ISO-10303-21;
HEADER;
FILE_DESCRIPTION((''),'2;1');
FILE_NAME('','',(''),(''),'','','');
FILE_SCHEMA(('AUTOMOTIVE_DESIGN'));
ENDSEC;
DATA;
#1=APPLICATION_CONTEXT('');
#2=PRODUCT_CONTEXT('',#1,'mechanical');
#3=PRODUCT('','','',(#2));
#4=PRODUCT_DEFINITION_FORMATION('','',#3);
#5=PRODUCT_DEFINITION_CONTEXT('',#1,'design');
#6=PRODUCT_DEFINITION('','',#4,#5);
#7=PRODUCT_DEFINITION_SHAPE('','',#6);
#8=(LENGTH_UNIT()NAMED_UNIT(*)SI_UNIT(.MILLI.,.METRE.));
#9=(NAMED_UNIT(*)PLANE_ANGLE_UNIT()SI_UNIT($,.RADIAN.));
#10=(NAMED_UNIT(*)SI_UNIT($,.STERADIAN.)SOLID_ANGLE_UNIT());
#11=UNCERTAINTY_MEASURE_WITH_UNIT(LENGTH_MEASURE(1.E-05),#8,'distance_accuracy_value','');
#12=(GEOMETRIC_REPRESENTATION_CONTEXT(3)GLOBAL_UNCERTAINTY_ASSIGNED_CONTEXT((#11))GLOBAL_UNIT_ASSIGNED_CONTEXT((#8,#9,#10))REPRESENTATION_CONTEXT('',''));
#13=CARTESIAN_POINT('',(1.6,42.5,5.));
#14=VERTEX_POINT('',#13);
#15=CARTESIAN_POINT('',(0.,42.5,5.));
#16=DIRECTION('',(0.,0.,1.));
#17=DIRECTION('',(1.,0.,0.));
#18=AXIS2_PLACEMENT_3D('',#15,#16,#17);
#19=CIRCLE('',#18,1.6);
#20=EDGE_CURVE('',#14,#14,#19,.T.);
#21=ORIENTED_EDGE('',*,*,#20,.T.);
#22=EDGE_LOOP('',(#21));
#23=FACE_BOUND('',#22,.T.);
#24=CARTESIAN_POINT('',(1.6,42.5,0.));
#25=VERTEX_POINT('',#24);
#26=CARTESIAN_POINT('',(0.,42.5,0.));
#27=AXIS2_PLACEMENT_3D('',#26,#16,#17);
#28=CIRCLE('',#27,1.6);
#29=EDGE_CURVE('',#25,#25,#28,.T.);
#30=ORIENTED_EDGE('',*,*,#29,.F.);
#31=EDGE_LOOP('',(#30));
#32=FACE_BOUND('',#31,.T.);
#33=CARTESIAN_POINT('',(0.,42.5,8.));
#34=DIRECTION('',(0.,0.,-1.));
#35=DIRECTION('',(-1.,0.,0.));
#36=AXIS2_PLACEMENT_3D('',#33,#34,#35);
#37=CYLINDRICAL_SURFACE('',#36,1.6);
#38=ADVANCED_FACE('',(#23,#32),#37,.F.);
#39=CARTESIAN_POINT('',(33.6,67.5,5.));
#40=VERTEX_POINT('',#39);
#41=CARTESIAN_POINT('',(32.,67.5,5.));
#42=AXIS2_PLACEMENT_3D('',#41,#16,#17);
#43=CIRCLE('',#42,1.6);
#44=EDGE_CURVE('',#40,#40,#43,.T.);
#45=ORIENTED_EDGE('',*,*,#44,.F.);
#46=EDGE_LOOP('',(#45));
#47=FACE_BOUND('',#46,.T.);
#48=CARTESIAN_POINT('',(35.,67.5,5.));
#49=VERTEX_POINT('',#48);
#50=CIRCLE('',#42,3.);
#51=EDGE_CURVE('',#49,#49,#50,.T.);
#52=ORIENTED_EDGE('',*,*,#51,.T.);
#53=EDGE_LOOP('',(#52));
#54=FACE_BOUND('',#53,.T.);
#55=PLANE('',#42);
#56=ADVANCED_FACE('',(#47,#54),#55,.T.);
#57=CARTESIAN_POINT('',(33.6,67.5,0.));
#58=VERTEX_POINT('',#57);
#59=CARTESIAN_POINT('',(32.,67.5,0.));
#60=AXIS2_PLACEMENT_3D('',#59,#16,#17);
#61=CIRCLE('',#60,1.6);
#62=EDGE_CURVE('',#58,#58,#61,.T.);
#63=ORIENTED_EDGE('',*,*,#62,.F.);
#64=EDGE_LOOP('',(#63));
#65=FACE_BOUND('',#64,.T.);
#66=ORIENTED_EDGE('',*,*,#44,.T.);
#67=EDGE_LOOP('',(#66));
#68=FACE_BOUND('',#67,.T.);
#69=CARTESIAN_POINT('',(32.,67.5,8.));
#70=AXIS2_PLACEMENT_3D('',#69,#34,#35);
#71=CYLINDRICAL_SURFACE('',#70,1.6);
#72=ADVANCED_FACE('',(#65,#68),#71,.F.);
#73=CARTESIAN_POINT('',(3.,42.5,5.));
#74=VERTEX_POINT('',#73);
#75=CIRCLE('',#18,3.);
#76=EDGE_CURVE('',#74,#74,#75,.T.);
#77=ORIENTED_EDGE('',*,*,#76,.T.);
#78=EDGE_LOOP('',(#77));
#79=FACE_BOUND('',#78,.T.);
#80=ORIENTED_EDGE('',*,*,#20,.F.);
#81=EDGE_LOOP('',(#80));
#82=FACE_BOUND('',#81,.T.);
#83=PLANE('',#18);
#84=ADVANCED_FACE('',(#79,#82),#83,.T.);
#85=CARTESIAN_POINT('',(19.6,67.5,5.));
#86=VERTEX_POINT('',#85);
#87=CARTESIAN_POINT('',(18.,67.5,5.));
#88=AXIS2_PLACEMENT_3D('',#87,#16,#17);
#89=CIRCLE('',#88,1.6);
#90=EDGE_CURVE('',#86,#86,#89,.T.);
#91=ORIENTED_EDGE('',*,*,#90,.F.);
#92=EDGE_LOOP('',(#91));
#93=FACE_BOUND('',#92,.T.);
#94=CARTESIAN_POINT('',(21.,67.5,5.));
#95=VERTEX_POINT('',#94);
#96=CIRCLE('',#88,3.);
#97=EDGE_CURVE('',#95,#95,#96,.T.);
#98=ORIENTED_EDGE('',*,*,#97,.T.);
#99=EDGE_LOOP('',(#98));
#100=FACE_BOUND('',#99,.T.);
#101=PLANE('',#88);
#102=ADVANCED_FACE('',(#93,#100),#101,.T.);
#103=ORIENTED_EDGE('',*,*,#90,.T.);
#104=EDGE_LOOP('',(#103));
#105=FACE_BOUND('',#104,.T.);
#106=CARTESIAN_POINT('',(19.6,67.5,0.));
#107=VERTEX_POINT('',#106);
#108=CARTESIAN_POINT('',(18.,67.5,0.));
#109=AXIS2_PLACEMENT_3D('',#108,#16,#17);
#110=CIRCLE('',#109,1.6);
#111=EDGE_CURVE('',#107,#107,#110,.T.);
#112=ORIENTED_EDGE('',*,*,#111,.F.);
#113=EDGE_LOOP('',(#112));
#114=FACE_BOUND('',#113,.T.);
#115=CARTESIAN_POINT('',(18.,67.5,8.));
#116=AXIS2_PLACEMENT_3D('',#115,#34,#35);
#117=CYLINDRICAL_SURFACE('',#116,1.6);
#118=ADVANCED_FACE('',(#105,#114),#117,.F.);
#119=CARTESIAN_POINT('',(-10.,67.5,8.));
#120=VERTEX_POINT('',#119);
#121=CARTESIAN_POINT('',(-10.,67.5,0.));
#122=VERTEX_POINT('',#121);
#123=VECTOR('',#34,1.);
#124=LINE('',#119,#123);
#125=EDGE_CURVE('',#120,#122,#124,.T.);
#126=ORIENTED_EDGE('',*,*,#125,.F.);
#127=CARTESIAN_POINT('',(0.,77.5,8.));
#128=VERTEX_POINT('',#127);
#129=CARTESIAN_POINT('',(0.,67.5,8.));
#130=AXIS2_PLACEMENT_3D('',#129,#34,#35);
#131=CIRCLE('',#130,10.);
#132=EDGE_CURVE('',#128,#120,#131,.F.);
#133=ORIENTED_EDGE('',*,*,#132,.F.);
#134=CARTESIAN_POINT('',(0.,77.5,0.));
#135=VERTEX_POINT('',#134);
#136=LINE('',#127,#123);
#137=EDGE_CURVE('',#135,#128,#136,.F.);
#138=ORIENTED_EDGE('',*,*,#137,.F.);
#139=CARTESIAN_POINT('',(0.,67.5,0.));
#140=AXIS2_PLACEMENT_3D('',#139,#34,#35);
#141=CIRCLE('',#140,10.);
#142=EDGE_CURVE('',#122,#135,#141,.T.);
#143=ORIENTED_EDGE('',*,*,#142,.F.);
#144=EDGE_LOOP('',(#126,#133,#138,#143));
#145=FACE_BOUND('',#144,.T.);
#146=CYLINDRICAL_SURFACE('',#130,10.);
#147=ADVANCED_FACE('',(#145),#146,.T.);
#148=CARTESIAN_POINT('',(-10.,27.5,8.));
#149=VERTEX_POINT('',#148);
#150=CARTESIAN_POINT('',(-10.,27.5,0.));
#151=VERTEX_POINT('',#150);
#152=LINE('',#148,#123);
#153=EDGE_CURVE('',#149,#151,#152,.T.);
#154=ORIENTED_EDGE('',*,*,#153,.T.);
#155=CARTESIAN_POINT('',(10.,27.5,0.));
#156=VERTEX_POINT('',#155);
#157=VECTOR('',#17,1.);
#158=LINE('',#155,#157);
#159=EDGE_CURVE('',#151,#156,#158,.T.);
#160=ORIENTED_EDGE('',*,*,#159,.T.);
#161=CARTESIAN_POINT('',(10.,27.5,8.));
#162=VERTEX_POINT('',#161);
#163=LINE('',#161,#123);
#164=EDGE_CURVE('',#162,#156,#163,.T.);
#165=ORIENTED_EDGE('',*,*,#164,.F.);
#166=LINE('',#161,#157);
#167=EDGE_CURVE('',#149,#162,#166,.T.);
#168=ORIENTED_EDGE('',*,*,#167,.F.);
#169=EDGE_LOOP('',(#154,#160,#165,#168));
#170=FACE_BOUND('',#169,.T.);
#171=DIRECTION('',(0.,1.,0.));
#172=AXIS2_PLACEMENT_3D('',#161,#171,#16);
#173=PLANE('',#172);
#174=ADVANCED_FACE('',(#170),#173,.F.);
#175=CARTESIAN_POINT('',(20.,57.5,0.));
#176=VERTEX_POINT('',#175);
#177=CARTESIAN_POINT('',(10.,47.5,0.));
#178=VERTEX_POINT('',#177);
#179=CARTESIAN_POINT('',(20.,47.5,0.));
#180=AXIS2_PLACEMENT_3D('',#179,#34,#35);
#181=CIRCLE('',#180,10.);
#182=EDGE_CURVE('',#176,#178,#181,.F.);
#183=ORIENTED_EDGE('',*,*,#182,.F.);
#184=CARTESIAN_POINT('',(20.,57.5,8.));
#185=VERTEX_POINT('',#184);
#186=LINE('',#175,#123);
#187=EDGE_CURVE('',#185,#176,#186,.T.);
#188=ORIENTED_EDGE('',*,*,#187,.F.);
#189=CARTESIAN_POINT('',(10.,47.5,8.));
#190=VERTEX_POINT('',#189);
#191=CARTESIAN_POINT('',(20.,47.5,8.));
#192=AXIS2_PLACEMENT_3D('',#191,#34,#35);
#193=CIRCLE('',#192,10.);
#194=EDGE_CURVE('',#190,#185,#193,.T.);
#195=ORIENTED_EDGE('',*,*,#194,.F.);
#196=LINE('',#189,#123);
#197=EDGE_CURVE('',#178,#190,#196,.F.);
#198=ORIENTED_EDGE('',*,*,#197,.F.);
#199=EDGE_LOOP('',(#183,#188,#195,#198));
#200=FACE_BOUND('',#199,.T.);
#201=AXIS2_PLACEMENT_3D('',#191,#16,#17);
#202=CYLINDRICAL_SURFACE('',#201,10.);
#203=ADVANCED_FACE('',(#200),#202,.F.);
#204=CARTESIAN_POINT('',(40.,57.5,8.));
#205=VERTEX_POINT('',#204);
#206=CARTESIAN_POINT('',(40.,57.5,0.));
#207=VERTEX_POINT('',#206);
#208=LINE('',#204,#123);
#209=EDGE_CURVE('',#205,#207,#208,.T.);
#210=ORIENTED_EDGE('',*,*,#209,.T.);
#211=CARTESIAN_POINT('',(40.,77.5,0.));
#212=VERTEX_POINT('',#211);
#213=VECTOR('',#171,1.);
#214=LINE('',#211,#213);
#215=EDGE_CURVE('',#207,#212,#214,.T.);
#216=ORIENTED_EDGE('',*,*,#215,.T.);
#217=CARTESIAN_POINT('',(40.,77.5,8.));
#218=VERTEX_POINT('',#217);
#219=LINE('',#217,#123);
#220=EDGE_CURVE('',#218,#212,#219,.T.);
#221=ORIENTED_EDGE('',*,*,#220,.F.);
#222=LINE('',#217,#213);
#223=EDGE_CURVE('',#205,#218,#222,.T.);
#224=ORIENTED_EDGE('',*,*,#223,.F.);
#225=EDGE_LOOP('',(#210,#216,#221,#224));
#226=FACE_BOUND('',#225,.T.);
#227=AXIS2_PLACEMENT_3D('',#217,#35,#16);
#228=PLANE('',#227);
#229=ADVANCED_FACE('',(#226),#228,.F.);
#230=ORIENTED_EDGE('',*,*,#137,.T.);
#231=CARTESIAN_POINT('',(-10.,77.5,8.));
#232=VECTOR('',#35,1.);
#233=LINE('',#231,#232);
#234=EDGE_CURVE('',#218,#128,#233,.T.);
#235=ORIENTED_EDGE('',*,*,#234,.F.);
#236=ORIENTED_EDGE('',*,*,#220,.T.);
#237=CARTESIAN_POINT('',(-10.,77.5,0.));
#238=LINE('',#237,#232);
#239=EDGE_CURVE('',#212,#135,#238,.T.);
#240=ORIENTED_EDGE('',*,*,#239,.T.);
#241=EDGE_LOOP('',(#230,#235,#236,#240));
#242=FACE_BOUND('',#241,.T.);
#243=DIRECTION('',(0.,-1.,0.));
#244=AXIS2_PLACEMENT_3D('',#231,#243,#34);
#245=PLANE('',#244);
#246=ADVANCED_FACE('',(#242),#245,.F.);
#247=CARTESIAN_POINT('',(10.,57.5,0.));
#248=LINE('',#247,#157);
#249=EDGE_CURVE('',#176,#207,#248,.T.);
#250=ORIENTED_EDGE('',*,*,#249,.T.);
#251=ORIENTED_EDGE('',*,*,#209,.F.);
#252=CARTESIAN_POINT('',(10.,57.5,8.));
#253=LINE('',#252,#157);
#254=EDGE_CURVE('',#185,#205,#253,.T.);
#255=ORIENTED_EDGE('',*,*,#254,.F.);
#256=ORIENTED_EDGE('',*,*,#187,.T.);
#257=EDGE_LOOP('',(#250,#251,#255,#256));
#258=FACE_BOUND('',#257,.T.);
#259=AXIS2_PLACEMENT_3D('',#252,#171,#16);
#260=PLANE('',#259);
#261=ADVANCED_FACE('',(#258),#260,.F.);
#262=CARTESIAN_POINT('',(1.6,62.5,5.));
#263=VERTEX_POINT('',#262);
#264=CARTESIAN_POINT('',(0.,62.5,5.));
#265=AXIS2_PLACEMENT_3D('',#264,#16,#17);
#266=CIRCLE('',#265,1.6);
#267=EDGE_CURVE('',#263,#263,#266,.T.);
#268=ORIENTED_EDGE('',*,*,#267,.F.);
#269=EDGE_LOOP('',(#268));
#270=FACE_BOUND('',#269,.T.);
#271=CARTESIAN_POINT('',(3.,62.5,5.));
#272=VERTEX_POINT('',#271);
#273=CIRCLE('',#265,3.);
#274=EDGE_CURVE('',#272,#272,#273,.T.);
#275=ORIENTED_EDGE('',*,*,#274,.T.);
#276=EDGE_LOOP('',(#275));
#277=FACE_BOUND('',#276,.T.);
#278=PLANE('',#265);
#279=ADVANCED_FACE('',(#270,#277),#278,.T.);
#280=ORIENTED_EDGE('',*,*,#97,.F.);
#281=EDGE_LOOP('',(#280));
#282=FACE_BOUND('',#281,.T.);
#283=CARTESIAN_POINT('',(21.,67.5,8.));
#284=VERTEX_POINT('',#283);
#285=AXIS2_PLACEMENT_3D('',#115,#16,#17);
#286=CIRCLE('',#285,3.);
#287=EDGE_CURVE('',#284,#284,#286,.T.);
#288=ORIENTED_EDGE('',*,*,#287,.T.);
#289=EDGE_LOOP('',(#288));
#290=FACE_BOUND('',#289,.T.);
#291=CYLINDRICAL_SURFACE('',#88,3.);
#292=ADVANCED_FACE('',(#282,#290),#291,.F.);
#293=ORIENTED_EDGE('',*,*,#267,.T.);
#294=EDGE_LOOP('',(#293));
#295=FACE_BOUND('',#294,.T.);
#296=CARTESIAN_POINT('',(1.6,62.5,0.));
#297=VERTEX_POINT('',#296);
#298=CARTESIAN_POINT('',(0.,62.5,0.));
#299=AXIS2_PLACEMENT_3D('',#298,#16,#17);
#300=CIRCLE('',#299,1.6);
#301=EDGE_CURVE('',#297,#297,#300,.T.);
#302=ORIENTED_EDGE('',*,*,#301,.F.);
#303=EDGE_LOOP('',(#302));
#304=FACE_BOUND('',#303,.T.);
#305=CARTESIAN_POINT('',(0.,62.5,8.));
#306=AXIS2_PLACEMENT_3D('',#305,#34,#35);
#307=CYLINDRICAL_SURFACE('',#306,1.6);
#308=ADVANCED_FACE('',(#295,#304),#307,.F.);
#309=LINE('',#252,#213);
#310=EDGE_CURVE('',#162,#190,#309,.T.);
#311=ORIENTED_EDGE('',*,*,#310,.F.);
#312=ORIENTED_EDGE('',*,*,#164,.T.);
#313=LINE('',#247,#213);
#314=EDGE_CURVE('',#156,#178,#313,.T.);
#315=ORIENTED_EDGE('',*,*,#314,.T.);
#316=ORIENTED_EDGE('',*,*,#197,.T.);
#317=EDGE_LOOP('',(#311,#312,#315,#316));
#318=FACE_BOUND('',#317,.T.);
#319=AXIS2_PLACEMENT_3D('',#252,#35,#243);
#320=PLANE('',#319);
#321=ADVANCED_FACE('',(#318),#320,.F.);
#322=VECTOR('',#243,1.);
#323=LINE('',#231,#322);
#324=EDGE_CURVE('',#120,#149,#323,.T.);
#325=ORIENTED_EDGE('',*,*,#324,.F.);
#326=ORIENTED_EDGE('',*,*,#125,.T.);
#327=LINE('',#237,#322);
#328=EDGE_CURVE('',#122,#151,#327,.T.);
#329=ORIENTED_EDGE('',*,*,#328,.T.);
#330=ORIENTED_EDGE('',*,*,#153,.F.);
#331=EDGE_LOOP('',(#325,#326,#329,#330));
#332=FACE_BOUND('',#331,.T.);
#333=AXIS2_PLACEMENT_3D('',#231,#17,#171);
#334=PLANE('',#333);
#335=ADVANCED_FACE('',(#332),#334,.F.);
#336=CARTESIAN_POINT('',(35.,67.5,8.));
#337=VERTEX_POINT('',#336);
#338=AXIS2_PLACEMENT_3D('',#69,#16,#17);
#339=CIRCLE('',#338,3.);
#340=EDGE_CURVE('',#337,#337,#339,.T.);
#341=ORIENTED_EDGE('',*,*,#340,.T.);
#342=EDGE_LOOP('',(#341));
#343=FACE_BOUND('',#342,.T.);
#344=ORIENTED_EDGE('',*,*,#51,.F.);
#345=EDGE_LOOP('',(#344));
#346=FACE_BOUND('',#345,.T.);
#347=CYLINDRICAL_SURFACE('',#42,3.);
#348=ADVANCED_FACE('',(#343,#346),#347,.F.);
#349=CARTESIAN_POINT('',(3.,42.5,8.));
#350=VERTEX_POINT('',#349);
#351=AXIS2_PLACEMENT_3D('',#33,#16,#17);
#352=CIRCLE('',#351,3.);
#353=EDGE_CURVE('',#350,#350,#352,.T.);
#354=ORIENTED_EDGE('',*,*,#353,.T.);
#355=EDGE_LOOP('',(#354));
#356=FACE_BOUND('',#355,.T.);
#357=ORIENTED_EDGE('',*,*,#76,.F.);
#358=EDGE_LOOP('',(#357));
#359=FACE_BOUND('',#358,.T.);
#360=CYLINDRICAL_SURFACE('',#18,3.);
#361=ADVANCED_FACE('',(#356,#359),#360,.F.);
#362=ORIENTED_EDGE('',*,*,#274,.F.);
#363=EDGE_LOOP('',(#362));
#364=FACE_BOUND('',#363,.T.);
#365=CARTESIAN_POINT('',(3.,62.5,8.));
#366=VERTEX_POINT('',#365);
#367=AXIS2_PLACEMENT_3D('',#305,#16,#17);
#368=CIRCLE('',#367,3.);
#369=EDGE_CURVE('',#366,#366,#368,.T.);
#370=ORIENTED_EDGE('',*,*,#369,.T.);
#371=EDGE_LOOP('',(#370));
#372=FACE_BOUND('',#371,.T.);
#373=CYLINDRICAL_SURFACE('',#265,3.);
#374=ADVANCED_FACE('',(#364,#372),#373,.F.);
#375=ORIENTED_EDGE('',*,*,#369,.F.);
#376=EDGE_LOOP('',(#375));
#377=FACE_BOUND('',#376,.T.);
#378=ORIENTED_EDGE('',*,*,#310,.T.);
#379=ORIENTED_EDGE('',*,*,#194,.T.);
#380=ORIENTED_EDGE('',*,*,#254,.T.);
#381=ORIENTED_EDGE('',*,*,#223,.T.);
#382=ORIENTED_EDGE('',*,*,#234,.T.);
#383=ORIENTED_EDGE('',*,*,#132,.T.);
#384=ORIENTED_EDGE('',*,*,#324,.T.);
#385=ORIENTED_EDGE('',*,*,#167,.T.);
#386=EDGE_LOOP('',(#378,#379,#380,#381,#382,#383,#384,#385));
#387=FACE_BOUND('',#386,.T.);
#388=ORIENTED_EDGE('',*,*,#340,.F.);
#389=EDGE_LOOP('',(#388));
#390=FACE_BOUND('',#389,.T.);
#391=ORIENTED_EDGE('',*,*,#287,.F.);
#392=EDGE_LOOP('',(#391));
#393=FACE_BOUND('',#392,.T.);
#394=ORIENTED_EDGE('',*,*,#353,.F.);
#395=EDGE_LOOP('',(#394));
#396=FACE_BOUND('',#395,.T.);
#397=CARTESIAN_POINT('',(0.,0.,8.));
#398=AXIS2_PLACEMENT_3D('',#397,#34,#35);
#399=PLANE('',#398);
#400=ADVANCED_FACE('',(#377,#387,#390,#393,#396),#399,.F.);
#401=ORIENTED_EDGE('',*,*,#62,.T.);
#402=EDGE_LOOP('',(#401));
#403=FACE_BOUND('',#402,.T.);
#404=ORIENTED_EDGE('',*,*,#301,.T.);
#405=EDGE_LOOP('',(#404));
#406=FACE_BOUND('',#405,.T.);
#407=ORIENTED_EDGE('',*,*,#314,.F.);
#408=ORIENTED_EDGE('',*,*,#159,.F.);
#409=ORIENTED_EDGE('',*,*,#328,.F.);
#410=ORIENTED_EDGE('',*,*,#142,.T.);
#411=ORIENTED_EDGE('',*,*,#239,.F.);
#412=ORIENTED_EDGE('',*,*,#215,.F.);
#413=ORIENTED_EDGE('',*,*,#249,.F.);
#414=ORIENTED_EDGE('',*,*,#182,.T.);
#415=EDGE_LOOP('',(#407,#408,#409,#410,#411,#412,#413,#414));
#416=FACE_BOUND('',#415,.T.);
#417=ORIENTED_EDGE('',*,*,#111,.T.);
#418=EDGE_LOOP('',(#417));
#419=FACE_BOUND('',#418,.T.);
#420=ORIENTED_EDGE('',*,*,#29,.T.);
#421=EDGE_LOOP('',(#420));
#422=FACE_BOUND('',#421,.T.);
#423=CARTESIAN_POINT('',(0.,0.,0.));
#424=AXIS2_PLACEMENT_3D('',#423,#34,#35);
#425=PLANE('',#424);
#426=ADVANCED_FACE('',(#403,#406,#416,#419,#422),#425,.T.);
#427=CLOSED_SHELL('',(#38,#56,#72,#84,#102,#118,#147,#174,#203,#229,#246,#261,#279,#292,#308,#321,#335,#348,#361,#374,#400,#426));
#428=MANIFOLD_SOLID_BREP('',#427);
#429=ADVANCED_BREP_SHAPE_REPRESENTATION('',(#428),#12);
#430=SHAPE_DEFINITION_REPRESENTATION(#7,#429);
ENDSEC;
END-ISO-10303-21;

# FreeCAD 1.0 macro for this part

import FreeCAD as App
import Part
import Sketcher
from FreeCAD import Vector


def edges_at(feature, points):
    """Names of the edges that pass closest to the given points."""
    edges = feature.Shape.Edges
    near = lambda p: min(range(len(edges)), key=lambda i: edges[i].distToShape(Part.Vertex(*p))[0])
    return sorted({f"Edge{near(p) + 1}" for p in points})

doc = App.newDocument("Part")
body = doc.addObject("PartDesign::Body", "Body")

sketch1 = body.newObject("Sketcher::SketchObject", "Sketch")
sketch1.AttachmentSupport = (doc.getObject("XY_Plane"), [""])
sketch1.MapMode = "FlatFace"
sketch1.addGeometry(Part.LineSegment(Vector(10, 27.5, 0), Vector(10, 57.5, 0)), False)
sketch1.addGeometry(Part.LineSegment(Vector(10, 57.5, 0), Vector(40, 57.5, 0)), False)
sketch1.addGeometry(Part.LineSegment(Vector(40, 57.5, 0), Vector(40, 77.5, 0)), False)
sketch1.addGeometry(Part.LineSegment(Vector(40, 77.5, 0), Vector(-10, 77.5, 0)), False)
sketch1.addGeometry(Part.LineSegment(Vector(-10, 77.5, 0), Vector(-10, 27.5, 0)), False)
sketch1.addGeometry(Part.LineSegment(Vector(-10, 27.5, 0), Vector(10, 27.5, 0)), False)
sketch1.addGeometry(Part.Circle(Vector(0, 42.5, 0), Vector(0, 0, 1), 1.6), False)
sketch1.addGeometry(Part.Circle(Vector(32, 67.5, 0), Vector(0, 0, 1), 1.6), False)
sketch1.addGeometry(Part.Circle(Vector(18, 67.5, 0), Vector(0, 0, 1), 1.6), False)
sketch1.addGeometry(Part.Circle(Vector(0, 62.5, 0), Vector(0, 0, 1), 1.6), False)
sketch1.addConstraint(Sketcher.Constraint("Coincident", 0, 2, 1, 1))
sketch1.addConstraint(Sketcher.Constraint("Coincident", 1, 2, 2, 1))
sketch1.addConstraint(Sketcher.Constraint("Coincident", 2, 2, 3, 1))
sketch1.addConstraint(Sketcher.Constraint("Coincident", 3, 2, 4, 1))
sketch1.addConstraint(Sketcher.Constraint("Coincident", 4, 2, 5, 1))
sketch1.addConstraint(Sketcher.Constraint("Coincident", 5, 2, 0, 1))
sketch1.addConstraint(Sketcher.Constraint("Vertical", 0))
sketch1.addConstraint(Sketcher.Constraint("Horizontal", 1))
sketch1.addConstraint(Sketcher.Constraint("Vertical", 2))
sketch1.addConstraint(Sketcher.Constraint("Horizontal", 3))
sketch1.addConstraint(Sketcher.Constraint("Vertical", 4))
sketch1.addConstraint(Sketcher.Constraint("Horizontal", 5))
sketch1.addConstraint(Sketcher.Constraint("Equal", 6, 7))
sketch1.addConstraint(Sketcher.Constraint("Equal", 7, 8))
sketch1.addConstraint(Sketcher.Constraint("Equal", 8, 9))
sketch1.addConstraint(Sketcher.Constraint("PointOnObject", 6, 3, -2))
sketch1.addConstraint(Sketcher.Constraint("PointOnObject", 9, 3, -2))
sketch1.addConstraint(Sketcher.Constraint("Horizontal", 7, 3, 8, 3))
sketch1.addConstraint(Sketcher.Constraint("Equal", 1, 0))
sketch1.addConstraint(Sketcher.Constraint("Equal", 5, 2))
sketch1.addConstraint(Sketcher.Constraint("Diameter", 6, 3.2))
sketch1.addConstraint(Sketcher.Constraint("DistanceX", 1, 1, 1, 2, 30.0))
sketch1.addConstraint(Sketcher.Constraint("DistanceX", 3, 2, 3, 1, 50.0))
sketch1.addConstraint(Sketcher.Constraint("DistanceX", -1, 1, 7, 3, 32.0))
sketch1.addConstraint(Sketcher.Constraint("DistanceX", -1, 1, 8, 3, 18.0))
sketch1.addConstraint(Sketcher.Constraint("DistanceX", -1, 1, 0, 2, 10.0))
sketch1.addConstraint(Sketcher.Constraint("DistanceY", 6, 3, 7, 3, 25.0))
sketch1.addConstraint(Sketcher.Constraint("DistanceY", 9, 3, 8, 3, 5.0))
sketch1.addConstraint(Sketcher.Constraint("DistanceY", 0, 2, 9, 3, 5.0))
sketch1.addConstraint(Sketcher.Constraint("DistanceY", -1, 1, 6, 3, 42.5))
pad1 = body.newObject("PartDesign::Pad", "Pad")
pad1.Profile = sketch1
pad1.Length = 8

sketch2 = body.newObject("Sketcher::SketchObject", "Sketch001")
sketch2.AttachmentSupport = (doc.getObject("XY_Plane"), [""])
sketch2.MapMode = "FlatFace"
sketch2.AttachmentOffset = App.Placement(Vector(0, 0, 8), App.Rotation())
sketch2.addGeometry(Part.Circle(Vector(32, 67.5, 0), Vector(0, 0, 1), 3), False)
sketch2.addGeometry(Part.Circle(Vector(18, 67.5, 0), Vector(0, 0, 1), 3), False)
sketch2.addGeometry(Part.Circle(Vector(0, 62.5, 0), Vector(0, 0, 1), 3), False)
sketch2.addGeometry(Part.Circle(Vector(0, 42.5, 0), Vector(0, 0, 1), 3), False)
sketch2.addConstraint(Sketcher.Constraint("Equal", 0, 1))
sketch2.addConstraint(Sketcher.Constraint("Equal", 1, 2))
sketch2.addConstraint(Sketcher.Constraint("Equal", 2, 3))
sketch2.addConstraint(Sketcher.Constraint("PointOnObject", 2, 3, -2))
sketch2.addConstraint(Sketcher.Constraint("PointOnObject", 3, 3, -2))
sketch2.addConstraint(Sketcher.Constraint("Horizontal", 0, 3, 1, 3))
sketch2.addConstraint(Sketcher.Constraint("Diameter", 0, 6.0))
sketch2.addConstraint(Sketcher.Constraint("DistanceX", -1, 1, 0, 3, 32.0))
sketch2.addConstraint(Sketcher.Constraint("DistanceX", -1, 1, 1, 3, 18.0))
sketch2.addConstraint(Sketcher.Constraint("DistanceY", 2, 3, 1, 3, 5.0))
sketch2.addConstraint(Sketcher.Constraint("DistanceY", 3, 3, 2, 3, 20.0))
sketch2.addConstraint(Sketcher.Constraint("DistanceY", -1, 1, 0, 3, 67.5))
pocket1 = body.newObject("PartDesign::Pocket", "Pocket")
pocket1.Profile = sketch2
pocket1.Length = 3
doc.recompute()

fillet = body.newObject("PartDesign::Fillet", "Fillet")
fillet.Base = (pocket1, edges_at(pocket1, [(-10, 77.5, 4), (10, 57.5, 4)]))
fillet.Radius = 10

doc.recompute()
